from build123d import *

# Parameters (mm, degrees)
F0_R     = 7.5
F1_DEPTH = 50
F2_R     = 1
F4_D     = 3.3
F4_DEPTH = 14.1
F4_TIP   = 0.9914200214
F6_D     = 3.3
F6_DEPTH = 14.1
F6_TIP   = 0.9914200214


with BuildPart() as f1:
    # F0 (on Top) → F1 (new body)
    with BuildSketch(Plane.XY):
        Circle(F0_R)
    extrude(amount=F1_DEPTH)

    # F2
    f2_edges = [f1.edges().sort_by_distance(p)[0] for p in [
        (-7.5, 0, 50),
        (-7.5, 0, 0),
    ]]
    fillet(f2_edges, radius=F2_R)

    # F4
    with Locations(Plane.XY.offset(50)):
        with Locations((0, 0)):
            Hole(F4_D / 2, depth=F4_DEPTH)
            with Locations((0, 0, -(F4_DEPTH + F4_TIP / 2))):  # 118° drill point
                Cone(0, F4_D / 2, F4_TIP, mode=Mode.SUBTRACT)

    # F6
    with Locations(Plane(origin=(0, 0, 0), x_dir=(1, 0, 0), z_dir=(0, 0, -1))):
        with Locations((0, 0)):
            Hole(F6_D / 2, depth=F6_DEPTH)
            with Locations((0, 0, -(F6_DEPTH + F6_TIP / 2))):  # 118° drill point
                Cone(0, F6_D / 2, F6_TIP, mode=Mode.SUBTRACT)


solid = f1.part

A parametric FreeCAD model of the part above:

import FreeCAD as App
import Part
import Sketcher


def edges_at(feature, points):
    """Names of the edges that pass closest to the given points."""
    edges = feature.Shape.Edges
    near = lambda p: min(range(len(edges)), key=lambda i: edges[i].distToShape(Part.Vertex(*p))[0])
    return sorted({f"Edge{near(p) + 1}" for p in points})

doc = App.newDocument("Part")
body = doc.addObject("PartDesign::Body", "Body")

# Sketch on XY plane
sketch1 = body.newObject("Sketcher::SketchObject", "Sketch")
sketch1.AttachmentSupport = (doc.getObject("XY_Plane"), [""])
sketch1.MapMode = "FlatFace"
sketch1.addGeometry(Part.Circle(App.Vector(0, 0, 0), App.Vector(0, 0, 1), 7.5), False)
sketch1.addConstraint([
    Sketcher.Constraint("Coincident", 0, 3, -1, 1),
    Sketcher.Constraint("Diameter", 0, 15.0),
])
pad1 = body.newObject("PartDesign::Pad", "Pad")
pad1.Profile = sketch1
pad1.Length = 50
doc.recompute()

fillet = body.newObject("PartDesign::Fillet", "Fillet")
fillet.Base = (pad1, edges_at(pad1, [(-7.5, 0, 50), (-7.5, 0, 0)]))
fillet.Radius = 1

# Sketch on XY plane
sketch2 = body.newObject("Sketcher::SketchObject", "Sketch001")
sketch2.AttachmentSupport = (doc.getObject("XY_Plane"), [""])
sketch2.MapMode = "FlatFace"
sketch2.AttachmentOffset = App.Placement(App.Vector(0, 0, 50), App.Rotation())
sketch2.addGeometry(Part.Circle(App.Vector(0, 0, 0), App.Vector(0, 0, 1), 1.65), False)
sketch2.addConstraint([
    Sketcher.Constraint("Coincident", 0, 3, -1, 1),
    Sketcher.Constraint("Diameter", 0, 3.3),
])
doc.recompute()
hole = body.newObject("PartDesign::Hole", "Hole")
hole.Profile = sketch2
hole.ThreadType = "None"
hole.Diameter = 3.3
hole.DepthType = "Dimension"
hole.Depth = 14.1
hole.DrillPoint = "Angled"
hole.DrillPointAngle = 118

# Sketch on XY plane
sketch3 = body.newObject("Sketcher::SketchObject", "Sketch002")
sketch3.AttachmentSupport = (doc.getObject("XY_Plane"), [""])
sketch3.MapMode = "FlatFace"
sketch3.addGeometry(Part.Circle(App.Vector(0, 0, 0), App.Vector(0, 0, 1), 1.65), False)
sketch3.addConstraint([
    Sketcher.Constraint("Coincident", 0, 3, -1, 1),
    Sketcher.Constraint("Diameter", 0, 3.3),
])
doc.recompute()
hole2 = body.newObject("PartDesign::Hole", "Hole001")
hole2.Profile = sketch3
hole2.ThreadType = "None"
hole2.Diameter = 3.3
hole2.DepthType = "Dimension"
hole2.Depth = 14.1
hole2.DrillPoint = "Angled"
hole2.DrillPointAngle = 118
hole2.Reversed = True

doc.recompute()
